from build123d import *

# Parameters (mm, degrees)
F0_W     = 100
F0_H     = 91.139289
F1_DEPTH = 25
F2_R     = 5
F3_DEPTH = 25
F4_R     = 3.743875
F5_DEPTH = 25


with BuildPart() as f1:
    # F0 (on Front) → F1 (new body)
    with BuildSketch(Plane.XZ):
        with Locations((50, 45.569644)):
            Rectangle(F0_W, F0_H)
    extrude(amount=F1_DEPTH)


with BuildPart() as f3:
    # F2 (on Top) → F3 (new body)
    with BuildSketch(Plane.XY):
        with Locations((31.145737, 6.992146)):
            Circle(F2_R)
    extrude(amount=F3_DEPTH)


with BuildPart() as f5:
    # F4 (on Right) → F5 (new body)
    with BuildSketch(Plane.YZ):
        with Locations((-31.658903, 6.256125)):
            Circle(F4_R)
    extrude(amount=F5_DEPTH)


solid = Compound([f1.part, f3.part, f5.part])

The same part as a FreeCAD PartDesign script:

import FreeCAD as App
import Part
import Sketcher

V = App.Vector
Q = App.Units.Quantity


def add_polygon(sketch, points):
    """Adds a closed chain of lines whose ends are joined by coincident constraints."""
    first, n = sketch.GeometryCount, len(points)
    for a, b in zip(points, points[1:] + points[:1]):
        sketch.addGeometry(Part.LineSegment(App.Vector(*a, 0), App.Vector(*b, 0)), False)
    for i in range(n):
        sketch.addConstraint(Sketcher.Constraint("Coincident", first + i, 2, first + (i + 1) % n, 1))

doc = App.newDocument("Part")
body = doc.addObject("PartDesign::Body", "Body")

sketch1 = doc.addObject("Sketcher::SketchObject", "Sketch")
body.addObject(sketch1)
sketch1.AttachmentSupport = (doc.XZ_Plane, [""])
sketch1.MapMode = "FlatFace"
add_polygon(sketch1, [(0, 91.139289), (0, 0), (100, 0), (100, 91.139289)])
sketch1.addConstraint(Sketcher.Constraint("Vertical", 0))
sketch1.addConstraint(Sketcher.Constraint("Horizontal", 1))
sketch1.addConstraint(Sketcher.Constraint("Vertical", 2))
sketch1.addConstraint(Sketcher.Constraint("Horizontal", 3))
sketch1.addConstraint(Sketcher.Constraint("Coincident", 0, 2, -1, 1))
sketch1.addConstraint(Sketcher.Constraint("DistanceX", 1, 1, 1, 2, Q("100 mm")))
sketch1.addConstraint(Sketcher.Constraint("DistanceY", 0, 2, 0, 1, Q("91.139289 mm")))
pad1 = doc.addObject("PartDesign::Pad", "Pad")
body.addObject(pad1)
pad1.Profile = sketch1
pad1.Length = 25
body2 = doc.addObject("PartDesign::Body", "Body001")

sketch2 = doc.addObject("Sketcher::SketchObject", "Sketch001")
body2.addObject(sketch2)
sketch2.AttachmentSupport = (doc.getObject("XY_Plane001"), [""])
sketch2.MapMode = "FlatFace"
sketch2.addGeometry(Part.Circle(V(31.145737, 6.992146, 0), V(0, 0, 1), 5), False)
sketch2.addConstraint(Sketcher.Constraint("Diameter", 0, Q("10 mm")))
sketch2.addConstraint(Sketcher.Constraint("DistanceX", -1, 1, 0, 3, Q("31.145737 mm")))
sketch2.addConstraint(Sketcher.Constraint("DistanceY", -1, 1, 0, 3, Q("6.992146 mm")))
pad2 = doc.addObject("PartDesign::Pad", "Pad001")
body2.addObject(pad2)
pad2.Profile = sketch2
pad2.Length = 25
body3 = doc.addObject("PartDesign::Body", "Body002")

sketch3 = doc.addObject("Sketcher::SketchObject", "Sketch002")
body3.addObject(sketch3)
sketch3.AttachmentSupport = (doc.getObject("YZ_Plane002"), [""])
sketch3.MapMode = "FlatFace"
sketch3.addGeometry(Part.Circle(V(-31.658903, 6.256125, 0), V(0, 0, 1), 3.743875), False)
sketch3.addConstraint(Sketcher.Constraint("Diameter", 0, Q("7.48775 mm")))
sketch3.addConstraint(Sketcher.Constraint("DistanceX", 0, 3, -1, 1, Q("31.658903 mm")))
sketch3.addConstraint(Sketcher.Constraint("DistanceY", -1, 1, 0, 3, Q("6.256125 mm")))
pad3 = doc.addObject("PartDesign::Pad", "Pad002")
body3.addObject(pad3)
pad3.Profile = sketch3
pad3.Length = 25

doc.recompute()
